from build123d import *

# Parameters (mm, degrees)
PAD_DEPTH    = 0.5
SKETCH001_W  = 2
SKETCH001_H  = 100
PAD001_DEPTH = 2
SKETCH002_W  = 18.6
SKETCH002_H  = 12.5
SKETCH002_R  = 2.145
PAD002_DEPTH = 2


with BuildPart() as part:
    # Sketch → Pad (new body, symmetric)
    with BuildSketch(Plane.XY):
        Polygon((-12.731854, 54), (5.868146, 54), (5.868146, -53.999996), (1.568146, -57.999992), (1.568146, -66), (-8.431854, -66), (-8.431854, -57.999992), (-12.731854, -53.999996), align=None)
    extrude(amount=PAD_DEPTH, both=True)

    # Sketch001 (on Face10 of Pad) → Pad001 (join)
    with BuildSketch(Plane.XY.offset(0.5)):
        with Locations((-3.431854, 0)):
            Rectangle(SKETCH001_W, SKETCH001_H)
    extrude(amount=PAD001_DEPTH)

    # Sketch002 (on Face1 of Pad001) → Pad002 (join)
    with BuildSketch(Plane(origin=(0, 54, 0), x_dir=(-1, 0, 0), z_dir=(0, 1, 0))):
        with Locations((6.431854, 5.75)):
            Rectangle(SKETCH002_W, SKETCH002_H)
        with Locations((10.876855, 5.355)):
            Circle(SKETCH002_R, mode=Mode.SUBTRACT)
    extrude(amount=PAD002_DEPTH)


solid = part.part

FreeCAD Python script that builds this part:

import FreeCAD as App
import Part
import Sketcher

doc = App.newDocument("Part")
params = doc.addObject("Spreadsheet::Sheet", "Params")
for row, (alias, value) in enumerate([
    ("sketch1_width", "10 mm"),
    ("sketch1_width2", "18.6 mm"),
    ("pad1_length", "1 mm"),
    ("sketch2_width", "2 mm"),
    ("sketch2_height", "100 mm"),
    ("pad2_length", "2 mm"),
    ("sketch3_diameter", "4.29 mm"),
    ("sketch3_width", "18.6 mm"),
    ("sketch3_height", "12.5 mm"),
    ("pad3_length", "2 mm"),
], start=1):
    params.set(f"A{row}", alias)
    params.set(f"B{row}", "=" + value)
    params.setAlias(f"B{row}", alias)

body = doc.addObject("PartDesign::Body", "Body")

# Sketch on XY plane
sketch1 = doc.addObject("Sketcher::SketchObject", "Sketch")
body.addObject(sketch1)
sketch1.AttachmentSupport = (doc.XY_Plane, [""])
sketch1.MapMode = "FlatFace"
sketch1.addGeometry([
    Part.LineSegment(App.Vector(6, 54, 0), App.Vector(-13, 54, 0)),  # 0
    Part.LineSegment(App.Vector(-13, 54, 0), App.Vector(-13, -54, 0)),  # 1
    Part.LineSegment(App.Vector(-13, -54, 0), App.Vector(-8, -58, 0)),  # 2
    Part.LineSegment(App.Vector(-8, -58, 0), App.Vector(-8, -66, 0)),  # 3
    Part.LineSegment(App.Vector(-8, -66, 0), App.Vector(2, -66, 0)),  # 4
    Part.LineSegment(App.Vector(2, -66, 0), App.Vector(2, -58, 0)),  # 5
    Part.LineSegment(App.Vector(2, -58, 0), App.Vector(6, -54, 0)),  # 6
    Part.LineSegment(App.Vector(6, -54, 0), App.Vector(6, 54, 0)),  # 7
], False)
sketch1.addConstraint([
    Sketcher.Constraint("Coincident", 0, 2, 1, 1),
    Sketcher.Constraint("Coincident", 1, 2, 2, 1),
    Sketcher.Constraint("Coincident", 2, 2, 3, 1),
    Sketcher.Constraint("Coincident", 3, 2, 4, 1),
    Sketcher.Constraint("Coincident", 4, 2, 5, 1),
    Sketcher.Constraint("Coincident", 5, 2, 6, 1),
    Sketcher.Constraint("Coincident", 6, 2, 7, 1),
    Sketcher.Constraint("Coincident", 7, 2, 0, 1),
    Sketcher.Constraint("Horizontal", 0),
    Sketcher.Constraint("Vertical", 1),
    Sketcher.Constraint("Vertical", 3),
    Sketcher.Constraint("Horizontal", 4),
    Sketcher.Constraint("Vertical", 5),
    Sketcher.Constraint("Vertical", 7),
    Sketcher.Constraint("Horizontal", 2, 2, 5, 2),
    Sketcher.Constraint("Horizontal", 1, 2, 6, 2),
    Sketcher.Constraint("Equal", 2, 6),
    Sketcher.Constraint("DistanceX", 4, 1, 4, 2, 10.0),
    Sketcher.Constraint("DistanceX", 0, 2, 0, 1, 18.6),
    Sketcher.Constraint("DistanceY", -1, 1, 0, 2, 54.0),
    Sketcher.Constraint("DistanceY", 3, 2, -1, 1, 66.0),
    Sketcher.Constraint("DistanceY", 3, 2, 3, 1, 8.000008),
    Sketcher.Constraint("DistanceY", 1, 2, 1, 1, 107.999996),
    Sketcher.Constraint("DistanceX", 0, 2, -1, 1, 12.731854),
])
sketch1.setExpression("Constraints[17]", "Params.sketch1_width")
sketch1.setExpression("Constraints[18]", "Params.sketch1_width2")
pad1 = doc.addObject("PartDesign::Pad", "Pad")
body.addObject(pad1)
pad1.Profile = sketch1
pad1.setExpression("Length", "Params.pad1_length")
pad1.Midplane = True

# Sketch on XY plane
sketch2 = doc.addObject("Sketcher::SketchObject", "Sketch001")
body.addObject(sketch2)
sketch2.AttachmentSupport = (doc.XY_Plane, [""])
sketch2.MapMode = "FlatFace"
sketch2.AttachmentOffset = App.Placement(App.Vector(0, 0, 0.5), App.Rotation())
sketch2.addGeometry([
    Part.LineSegment(App.Vector(-4.4, 50, 0), App.Vector(-4.4, -50, 0)),
    Part.LineSegment(App.Vector(-4.4, -50, 0), App.Vector(-2.4, -50, 0)),
    Part.LineSegment(App.Vector(-2.4, -50, 0), App.Vector(-2.4, 50, 0)),
    Part.LineSegment(App.Vector(-2.4, 50, 0), App.Vector(-4.4, 50, 0)),
], False)
sketch2.addConstraint([
    Sketcher.Constraint("Coincident", 0, 2, 1, 1),
    Sketcher.Constraint("Coincident", 1, 2, 2, 1),
    Sketcher.Constraint("Coincident", 2, 2, 3, 1),
    Sketcher.Constraint("Coincident", 3, 2, 0, 1),
    Sketcher.Constraint("Vertical", 0),
    Sketcher.Constraint("Horizontal", 1),
    Sketcher.Constraint("Vertical", 2),
    Sketcher.Constraint("Horizontal", 3),
    Sketcher.Constraint("DistanceX", 1, 1, 1, 2, 2.0),
    Sketcher.Constraint("DistanceY", 0, 2, 0, 1, 100.0),
    Sketcher.Constraint("DistanceY", 0, 2, -1, 1, 50.0),
    Sketcher.Constraint("DistanceX", 0, 2, -1, 1, 4.431854),
])
sketch2.setExpression("Constraints[8]", "Params.sketch2_width")
sketch2.setExpression("Constraints[9]", "Params.sketch2_height")
pad2 = doc.addObject("PartDesign::Pad", "Pad001")
body.addObject(pad2)
pad2.Profile = sketch2
pad2.setExpression("Length", "Params.pad2_length")

# Sketch on XZ plane
sketch3 = doc.addObject("Sketcher::SketchObject", "Sketch002")
body.addObject(sketch3)
sketch3.AttachmentSupport = (doc.XZ_Plane, [""])
sketch3.MapMode = "FlatFace"
sketch3.AttachmentOffset = App.Placement(App.Vector(0, 0, -54), App.Rotation())
sketch3.addGeometry([
    Part.LineSegment(App.Vector(2.9, 12, 0), App.Vector(2.9, -0.5, 0)),  # 0
    Part.LineSegment(App.Vector(2.9, -0.5, 0), App.Vector(-15.7, -0.5, 0)),  # 1
    Part.LineSegment(App.Vector(-15.7, -0.5, 0), App.Vector(-15.7, 12, 0)),  # 2
    Part.LineSegment(App.Vector(-15.7, 12, 0), App.Vector(2.9, 12, 0)),  # 3
    Part.Circle(App.Vector(-10.9, 5.4, 0), App.Vector(0, 0, 1), 2.1),  # 4
], False)
sketch3.addConstraint([
    Sketcher.Constraint("Coincident", 0, 2, 1, 1),
    Sketcher.Constraint("Coincident", 1, 2, 2, 1),
    Sketcher.Constraint("Coincident", 2, 2, 3, 1),
    Sketcher.Constraint("Coincident", 3, 2, 0, 1),
    Sketcher.Constraint("Vertical", 0),
    Sketcher.Constraint("Horizontal", 1),
    Sketcher.Constraint("Vertical", 2),
    Sketcher.Constraint("Horizontal", 3),
    Sketcher.Constraint("Diameter", 4, 4.29),
    Sketcher.Constraint("DistanceX", 1, 2, 1, 1, 18.6),
    Sketcher.Constraint("DistanceY", 0, 2, 0, 1, 12.5),
    Sketcher.Constraint("DistanceY", -1, 1, 2, 2, 12.0),
    Sketcher.Constraint("DistanceY", -1, 1, 4, 3, 5.355),
    Sketcher.Constraint("DistanceX", 4, 3, 0, 2, 13.745001),
    Sketcher.Constraint("DistanceX", 4, 3, -1, 1, 10.876855),
])
sketch3.setExpression("Constraints[8]", "Params.sketch3_diameter")
sketch3.setExpression("Constraints[9]", "Params.sketch3_width")
sketch3.setExpression("Constraints[10]", "Params.sketch3_height")
pad3 = doc.addObject("PartDesign::Pad", "Pad002")
body.addObject(pad3)
pad3.Profile = sketch3
pad3.setExpression("Length", "Params.pad3_length")
pad3.Reversed = True

doc.recompute()
